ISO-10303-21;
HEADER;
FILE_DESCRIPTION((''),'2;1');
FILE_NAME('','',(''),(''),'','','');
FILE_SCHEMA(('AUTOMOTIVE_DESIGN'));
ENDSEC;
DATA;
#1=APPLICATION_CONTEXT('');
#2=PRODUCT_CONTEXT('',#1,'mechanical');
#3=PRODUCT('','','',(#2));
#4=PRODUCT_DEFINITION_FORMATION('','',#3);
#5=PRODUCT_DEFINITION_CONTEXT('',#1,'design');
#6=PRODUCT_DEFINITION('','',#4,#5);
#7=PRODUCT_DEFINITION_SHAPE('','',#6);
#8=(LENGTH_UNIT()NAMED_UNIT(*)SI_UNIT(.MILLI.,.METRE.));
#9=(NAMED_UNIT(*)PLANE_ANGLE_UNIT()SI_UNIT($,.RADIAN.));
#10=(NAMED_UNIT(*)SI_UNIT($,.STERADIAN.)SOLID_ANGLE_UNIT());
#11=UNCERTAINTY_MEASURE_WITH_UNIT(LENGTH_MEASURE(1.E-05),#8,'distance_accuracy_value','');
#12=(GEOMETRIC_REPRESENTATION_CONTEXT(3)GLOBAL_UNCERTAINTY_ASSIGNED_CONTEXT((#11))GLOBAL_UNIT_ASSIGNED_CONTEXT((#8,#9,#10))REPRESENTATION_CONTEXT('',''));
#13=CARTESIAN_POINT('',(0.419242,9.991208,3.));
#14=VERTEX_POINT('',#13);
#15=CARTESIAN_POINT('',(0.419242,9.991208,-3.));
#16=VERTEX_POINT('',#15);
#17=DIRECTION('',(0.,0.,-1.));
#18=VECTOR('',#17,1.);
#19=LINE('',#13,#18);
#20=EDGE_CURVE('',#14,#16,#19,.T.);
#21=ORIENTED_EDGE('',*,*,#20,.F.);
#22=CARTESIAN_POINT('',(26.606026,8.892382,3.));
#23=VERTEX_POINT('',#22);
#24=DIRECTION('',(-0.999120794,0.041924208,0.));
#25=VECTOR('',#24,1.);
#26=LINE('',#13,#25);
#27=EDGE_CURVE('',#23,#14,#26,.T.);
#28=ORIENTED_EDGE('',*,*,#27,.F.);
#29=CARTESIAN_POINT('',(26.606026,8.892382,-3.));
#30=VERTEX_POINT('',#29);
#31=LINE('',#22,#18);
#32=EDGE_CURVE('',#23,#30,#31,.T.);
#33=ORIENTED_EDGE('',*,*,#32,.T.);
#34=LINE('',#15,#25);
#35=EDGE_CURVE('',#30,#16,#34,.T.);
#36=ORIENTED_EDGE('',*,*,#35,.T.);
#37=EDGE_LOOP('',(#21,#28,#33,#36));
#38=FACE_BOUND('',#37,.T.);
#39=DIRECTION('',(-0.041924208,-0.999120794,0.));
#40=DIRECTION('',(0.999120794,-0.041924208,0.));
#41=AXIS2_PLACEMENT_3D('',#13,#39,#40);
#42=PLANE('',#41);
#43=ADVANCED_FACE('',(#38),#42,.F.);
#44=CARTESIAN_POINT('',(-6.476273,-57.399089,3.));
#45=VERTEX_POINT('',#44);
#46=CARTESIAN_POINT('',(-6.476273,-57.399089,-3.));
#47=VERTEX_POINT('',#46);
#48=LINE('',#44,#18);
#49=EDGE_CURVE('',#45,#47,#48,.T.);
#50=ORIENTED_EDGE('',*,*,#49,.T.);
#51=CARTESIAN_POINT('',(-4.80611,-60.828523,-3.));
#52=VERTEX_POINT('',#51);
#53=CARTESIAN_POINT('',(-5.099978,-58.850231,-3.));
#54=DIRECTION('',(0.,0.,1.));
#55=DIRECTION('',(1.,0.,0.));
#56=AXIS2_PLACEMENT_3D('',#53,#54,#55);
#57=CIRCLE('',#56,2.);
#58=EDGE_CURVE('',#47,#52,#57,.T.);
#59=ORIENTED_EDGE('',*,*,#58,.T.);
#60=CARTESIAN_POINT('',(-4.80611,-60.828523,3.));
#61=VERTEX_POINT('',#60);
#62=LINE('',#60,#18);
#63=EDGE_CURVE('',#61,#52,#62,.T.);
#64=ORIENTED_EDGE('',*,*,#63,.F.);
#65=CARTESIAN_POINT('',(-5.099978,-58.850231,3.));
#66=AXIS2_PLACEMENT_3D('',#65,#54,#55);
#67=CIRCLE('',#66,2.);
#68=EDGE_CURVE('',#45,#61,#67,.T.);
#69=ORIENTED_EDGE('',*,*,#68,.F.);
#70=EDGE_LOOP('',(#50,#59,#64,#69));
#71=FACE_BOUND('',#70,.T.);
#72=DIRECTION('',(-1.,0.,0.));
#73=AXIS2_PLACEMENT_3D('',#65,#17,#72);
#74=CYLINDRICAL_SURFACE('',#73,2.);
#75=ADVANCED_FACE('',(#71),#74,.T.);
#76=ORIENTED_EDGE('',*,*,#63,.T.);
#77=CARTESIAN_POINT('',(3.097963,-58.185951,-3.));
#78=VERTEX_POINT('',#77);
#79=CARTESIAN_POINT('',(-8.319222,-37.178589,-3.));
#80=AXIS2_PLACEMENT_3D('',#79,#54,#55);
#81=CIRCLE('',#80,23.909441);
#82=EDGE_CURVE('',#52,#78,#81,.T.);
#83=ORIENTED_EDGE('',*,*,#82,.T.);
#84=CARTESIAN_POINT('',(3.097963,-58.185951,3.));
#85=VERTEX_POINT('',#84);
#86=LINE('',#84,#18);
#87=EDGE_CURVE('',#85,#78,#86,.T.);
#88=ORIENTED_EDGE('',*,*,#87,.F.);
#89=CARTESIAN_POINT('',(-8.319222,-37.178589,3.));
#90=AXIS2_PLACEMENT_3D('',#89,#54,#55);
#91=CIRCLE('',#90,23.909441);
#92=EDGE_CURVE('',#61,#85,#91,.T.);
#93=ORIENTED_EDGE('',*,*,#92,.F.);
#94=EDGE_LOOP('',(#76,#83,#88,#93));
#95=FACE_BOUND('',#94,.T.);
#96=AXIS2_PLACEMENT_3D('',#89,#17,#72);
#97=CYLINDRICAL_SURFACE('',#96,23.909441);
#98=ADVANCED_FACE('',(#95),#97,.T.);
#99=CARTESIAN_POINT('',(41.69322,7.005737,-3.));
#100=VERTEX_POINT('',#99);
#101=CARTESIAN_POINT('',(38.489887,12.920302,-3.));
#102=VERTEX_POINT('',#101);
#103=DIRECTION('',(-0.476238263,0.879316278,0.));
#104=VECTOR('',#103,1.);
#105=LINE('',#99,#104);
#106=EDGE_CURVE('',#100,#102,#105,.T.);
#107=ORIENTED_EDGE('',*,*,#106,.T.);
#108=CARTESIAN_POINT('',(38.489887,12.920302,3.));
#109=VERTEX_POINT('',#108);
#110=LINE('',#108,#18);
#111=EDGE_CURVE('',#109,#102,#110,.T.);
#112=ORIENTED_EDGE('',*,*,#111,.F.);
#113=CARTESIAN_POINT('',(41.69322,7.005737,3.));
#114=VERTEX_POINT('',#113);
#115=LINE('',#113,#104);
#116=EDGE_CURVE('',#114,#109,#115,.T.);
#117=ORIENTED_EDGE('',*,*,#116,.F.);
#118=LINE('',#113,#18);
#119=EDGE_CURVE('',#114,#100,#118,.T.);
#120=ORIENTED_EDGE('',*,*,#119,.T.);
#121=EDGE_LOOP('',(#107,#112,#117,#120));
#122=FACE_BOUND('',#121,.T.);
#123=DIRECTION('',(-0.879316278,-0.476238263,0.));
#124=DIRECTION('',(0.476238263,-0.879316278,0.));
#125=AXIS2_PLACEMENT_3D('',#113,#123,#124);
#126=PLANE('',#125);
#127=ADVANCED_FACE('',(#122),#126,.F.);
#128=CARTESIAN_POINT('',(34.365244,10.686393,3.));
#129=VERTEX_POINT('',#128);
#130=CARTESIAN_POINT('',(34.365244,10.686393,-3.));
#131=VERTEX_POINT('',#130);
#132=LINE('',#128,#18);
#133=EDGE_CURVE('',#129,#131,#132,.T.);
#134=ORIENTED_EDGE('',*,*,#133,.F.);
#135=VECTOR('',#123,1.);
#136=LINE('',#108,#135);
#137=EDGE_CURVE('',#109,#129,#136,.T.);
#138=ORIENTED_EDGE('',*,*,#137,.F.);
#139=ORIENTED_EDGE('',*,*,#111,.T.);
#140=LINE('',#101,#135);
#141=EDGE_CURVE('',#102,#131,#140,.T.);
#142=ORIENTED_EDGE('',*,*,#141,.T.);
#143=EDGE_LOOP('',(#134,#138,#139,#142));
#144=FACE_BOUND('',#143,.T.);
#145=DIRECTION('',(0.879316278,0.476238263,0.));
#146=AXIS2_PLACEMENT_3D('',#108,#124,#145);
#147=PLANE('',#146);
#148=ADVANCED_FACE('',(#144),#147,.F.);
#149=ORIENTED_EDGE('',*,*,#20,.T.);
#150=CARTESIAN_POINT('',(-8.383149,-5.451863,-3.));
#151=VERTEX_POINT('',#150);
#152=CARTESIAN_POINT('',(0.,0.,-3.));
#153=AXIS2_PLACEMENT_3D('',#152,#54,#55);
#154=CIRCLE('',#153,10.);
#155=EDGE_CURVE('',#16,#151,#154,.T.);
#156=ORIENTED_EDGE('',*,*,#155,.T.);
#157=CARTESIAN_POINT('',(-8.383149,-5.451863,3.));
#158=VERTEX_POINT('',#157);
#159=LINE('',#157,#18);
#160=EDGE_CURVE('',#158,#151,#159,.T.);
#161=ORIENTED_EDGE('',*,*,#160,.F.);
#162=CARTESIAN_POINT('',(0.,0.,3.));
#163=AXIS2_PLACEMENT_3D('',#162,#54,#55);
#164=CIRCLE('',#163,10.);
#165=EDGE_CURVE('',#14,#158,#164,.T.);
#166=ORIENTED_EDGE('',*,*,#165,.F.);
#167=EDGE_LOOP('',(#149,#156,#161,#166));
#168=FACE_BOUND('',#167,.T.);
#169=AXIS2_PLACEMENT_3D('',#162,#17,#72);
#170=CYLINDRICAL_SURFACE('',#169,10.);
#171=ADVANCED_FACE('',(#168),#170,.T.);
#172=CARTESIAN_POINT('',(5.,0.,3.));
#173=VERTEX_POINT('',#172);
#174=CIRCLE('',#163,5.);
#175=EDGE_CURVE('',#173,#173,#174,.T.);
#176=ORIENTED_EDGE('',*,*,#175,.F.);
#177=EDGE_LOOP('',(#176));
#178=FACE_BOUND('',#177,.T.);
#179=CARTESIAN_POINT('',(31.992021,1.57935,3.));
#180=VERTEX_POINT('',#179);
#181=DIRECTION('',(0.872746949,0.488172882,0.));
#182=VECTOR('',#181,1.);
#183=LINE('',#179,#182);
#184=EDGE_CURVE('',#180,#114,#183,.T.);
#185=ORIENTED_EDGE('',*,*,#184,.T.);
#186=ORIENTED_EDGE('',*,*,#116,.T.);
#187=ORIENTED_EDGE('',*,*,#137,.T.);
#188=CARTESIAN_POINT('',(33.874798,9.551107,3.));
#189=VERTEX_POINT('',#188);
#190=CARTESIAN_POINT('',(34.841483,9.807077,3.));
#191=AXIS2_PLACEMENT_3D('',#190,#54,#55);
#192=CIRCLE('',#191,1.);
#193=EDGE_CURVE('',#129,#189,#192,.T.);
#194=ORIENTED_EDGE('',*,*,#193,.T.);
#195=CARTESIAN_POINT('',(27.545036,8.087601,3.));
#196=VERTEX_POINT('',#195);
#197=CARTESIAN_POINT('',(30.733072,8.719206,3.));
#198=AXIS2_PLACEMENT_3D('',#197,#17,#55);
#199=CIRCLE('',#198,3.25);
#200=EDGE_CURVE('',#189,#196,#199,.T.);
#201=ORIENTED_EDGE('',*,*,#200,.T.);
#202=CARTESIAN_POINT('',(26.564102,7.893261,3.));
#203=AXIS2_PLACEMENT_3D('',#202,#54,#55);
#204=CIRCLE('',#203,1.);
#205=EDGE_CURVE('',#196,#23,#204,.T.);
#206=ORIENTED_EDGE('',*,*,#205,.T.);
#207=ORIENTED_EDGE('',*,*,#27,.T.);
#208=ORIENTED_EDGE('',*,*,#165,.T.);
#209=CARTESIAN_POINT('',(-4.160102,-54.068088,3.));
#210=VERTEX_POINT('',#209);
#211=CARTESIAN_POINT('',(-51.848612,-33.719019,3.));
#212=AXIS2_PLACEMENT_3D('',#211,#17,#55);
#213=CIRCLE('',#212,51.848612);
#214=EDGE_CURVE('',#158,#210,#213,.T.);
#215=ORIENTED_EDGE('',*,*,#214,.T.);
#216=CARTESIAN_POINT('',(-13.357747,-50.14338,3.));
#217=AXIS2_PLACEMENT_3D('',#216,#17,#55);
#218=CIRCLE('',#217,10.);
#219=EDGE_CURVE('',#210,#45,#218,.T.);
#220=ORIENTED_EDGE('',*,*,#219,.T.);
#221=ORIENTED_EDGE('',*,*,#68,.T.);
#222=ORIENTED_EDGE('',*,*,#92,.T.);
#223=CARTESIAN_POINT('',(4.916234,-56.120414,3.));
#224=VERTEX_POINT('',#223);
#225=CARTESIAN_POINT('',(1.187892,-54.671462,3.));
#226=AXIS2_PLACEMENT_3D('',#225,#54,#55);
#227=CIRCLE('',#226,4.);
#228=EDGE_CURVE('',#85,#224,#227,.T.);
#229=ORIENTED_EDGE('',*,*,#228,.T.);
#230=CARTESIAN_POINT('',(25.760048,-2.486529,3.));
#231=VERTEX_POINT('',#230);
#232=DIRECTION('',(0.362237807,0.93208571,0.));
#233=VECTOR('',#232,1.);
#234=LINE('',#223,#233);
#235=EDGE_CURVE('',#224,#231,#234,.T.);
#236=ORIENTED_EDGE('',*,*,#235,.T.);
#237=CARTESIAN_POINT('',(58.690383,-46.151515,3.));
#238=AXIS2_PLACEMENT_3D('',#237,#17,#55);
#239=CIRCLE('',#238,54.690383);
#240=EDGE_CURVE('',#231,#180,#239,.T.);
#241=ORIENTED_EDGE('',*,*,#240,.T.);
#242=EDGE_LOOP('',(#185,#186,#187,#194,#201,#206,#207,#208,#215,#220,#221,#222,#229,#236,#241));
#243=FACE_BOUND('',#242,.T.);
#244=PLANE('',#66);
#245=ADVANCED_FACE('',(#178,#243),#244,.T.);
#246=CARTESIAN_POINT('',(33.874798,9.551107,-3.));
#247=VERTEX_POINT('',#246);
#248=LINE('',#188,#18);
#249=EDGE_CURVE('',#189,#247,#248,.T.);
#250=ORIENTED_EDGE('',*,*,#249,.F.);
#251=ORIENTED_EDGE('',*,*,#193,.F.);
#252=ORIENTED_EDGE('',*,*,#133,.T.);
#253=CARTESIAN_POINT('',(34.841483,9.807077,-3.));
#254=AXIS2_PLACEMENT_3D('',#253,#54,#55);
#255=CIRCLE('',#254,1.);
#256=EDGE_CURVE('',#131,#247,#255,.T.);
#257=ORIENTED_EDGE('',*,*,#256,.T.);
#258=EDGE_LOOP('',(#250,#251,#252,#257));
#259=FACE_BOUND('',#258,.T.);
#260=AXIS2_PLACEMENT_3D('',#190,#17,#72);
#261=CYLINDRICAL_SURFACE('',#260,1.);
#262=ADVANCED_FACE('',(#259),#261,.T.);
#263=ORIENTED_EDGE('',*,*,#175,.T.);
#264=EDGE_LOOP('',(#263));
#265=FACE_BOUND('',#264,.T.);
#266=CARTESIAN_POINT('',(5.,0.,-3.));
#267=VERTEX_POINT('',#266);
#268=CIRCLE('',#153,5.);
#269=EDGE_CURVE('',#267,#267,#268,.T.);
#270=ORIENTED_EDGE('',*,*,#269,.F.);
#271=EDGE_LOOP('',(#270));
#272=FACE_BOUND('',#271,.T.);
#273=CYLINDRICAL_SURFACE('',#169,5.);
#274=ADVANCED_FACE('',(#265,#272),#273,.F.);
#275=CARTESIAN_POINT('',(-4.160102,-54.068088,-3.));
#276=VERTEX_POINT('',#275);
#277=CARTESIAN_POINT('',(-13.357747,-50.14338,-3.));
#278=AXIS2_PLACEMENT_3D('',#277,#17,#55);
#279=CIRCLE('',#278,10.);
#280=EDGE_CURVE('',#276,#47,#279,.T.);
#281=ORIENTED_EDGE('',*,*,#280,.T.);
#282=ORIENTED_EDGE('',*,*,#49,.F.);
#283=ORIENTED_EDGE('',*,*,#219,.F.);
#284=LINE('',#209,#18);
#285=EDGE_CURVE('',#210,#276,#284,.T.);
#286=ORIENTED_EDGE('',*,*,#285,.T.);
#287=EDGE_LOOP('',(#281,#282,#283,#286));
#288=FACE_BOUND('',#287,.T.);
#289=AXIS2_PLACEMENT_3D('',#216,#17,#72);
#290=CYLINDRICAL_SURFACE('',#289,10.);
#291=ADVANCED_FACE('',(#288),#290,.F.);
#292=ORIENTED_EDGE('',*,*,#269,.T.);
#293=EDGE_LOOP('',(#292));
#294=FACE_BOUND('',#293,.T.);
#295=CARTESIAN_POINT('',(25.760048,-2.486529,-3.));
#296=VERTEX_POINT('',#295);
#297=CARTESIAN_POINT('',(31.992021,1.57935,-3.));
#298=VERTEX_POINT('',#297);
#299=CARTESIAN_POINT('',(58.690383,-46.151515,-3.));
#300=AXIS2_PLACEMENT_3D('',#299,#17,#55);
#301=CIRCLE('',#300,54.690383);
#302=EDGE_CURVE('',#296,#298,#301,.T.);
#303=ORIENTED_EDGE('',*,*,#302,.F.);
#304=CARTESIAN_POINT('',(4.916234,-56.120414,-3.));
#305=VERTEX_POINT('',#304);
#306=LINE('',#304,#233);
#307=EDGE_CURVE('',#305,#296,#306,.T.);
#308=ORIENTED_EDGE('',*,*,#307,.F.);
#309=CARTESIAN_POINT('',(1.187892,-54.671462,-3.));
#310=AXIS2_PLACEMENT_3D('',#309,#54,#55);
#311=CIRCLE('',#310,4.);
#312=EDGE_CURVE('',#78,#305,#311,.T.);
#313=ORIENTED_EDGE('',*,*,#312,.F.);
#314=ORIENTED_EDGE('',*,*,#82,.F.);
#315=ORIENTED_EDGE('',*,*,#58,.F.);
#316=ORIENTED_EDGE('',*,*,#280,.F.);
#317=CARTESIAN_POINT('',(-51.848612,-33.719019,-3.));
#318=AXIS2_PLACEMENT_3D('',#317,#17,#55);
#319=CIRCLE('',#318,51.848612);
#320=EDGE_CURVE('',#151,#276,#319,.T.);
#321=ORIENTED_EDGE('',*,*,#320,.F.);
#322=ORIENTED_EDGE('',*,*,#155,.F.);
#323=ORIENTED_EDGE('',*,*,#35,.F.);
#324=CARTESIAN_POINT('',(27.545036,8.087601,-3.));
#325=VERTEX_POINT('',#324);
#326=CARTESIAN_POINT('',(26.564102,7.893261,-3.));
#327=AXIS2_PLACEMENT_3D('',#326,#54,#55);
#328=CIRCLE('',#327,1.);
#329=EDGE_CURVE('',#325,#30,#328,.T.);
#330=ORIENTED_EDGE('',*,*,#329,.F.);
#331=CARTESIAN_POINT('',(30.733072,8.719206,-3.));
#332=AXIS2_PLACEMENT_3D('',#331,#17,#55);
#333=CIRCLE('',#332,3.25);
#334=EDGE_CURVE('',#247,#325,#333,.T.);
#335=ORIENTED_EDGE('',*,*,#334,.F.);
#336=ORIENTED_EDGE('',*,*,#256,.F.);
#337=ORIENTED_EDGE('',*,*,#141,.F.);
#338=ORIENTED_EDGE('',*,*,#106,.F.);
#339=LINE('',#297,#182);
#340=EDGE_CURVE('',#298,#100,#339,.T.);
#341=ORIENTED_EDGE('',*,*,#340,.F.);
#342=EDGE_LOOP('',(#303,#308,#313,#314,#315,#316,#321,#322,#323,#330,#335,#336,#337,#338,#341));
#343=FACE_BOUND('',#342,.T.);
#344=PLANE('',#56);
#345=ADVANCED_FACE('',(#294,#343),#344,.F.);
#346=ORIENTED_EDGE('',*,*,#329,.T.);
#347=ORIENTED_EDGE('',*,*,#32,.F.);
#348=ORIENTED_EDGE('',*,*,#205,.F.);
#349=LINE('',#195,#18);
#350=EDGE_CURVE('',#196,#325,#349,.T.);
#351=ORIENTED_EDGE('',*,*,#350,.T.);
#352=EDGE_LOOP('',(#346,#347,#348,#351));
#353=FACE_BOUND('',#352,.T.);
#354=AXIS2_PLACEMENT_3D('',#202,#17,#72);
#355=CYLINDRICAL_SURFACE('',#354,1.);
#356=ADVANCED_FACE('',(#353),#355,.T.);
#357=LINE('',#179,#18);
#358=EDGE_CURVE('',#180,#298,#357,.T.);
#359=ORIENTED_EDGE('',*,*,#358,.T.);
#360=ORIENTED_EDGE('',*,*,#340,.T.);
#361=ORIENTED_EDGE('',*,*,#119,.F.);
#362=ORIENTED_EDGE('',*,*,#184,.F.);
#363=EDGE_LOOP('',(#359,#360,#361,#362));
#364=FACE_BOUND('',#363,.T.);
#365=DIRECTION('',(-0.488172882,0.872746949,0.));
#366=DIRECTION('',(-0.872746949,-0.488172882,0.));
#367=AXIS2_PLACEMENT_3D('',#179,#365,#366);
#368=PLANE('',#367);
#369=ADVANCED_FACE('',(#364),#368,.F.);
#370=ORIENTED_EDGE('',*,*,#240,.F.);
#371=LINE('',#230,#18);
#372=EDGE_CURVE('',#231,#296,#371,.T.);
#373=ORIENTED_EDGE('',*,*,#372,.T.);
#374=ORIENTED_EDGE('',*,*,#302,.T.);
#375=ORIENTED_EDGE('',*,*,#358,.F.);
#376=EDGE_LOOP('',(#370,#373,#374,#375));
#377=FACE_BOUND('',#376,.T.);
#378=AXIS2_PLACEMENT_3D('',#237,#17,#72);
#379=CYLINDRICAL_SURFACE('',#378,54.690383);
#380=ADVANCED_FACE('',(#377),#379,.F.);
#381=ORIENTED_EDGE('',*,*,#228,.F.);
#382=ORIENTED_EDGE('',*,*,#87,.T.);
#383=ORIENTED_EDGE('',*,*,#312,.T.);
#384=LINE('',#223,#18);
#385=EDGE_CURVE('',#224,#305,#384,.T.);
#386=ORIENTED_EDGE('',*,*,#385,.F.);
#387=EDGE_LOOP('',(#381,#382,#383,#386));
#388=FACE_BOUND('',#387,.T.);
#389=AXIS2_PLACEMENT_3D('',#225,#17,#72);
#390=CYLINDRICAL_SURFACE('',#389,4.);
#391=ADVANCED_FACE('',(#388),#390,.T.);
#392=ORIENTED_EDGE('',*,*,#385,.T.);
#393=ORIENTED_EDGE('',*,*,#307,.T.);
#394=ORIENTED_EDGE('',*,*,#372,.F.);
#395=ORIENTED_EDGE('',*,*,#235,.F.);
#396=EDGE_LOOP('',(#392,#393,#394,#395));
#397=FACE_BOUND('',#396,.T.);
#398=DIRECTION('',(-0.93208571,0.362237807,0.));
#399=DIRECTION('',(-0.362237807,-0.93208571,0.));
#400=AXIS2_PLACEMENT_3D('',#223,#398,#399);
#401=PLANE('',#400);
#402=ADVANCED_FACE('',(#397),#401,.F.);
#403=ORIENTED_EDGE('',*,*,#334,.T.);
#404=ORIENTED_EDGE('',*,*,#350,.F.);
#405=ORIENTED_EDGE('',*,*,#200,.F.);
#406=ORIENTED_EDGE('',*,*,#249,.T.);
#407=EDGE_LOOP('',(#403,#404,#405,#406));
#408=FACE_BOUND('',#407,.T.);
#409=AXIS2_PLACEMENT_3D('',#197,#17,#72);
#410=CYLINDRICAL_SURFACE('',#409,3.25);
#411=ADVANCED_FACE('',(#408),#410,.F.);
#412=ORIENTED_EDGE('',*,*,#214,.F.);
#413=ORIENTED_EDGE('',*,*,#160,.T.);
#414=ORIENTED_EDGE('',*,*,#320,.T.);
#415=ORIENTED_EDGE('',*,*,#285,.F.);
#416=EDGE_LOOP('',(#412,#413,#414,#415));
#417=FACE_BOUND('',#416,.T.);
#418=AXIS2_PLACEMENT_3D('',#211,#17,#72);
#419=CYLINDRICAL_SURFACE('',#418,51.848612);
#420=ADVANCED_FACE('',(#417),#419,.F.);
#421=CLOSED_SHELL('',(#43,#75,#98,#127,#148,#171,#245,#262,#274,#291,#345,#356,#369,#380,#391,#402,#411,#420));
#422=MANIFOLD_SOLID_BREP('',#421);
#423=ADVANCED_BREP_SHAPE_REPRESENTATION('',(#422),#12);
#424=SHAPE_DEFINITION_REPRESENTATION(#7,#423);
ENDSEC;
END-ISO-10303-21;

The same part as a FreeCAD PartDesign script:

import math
import FreeCAD as App
import Part
import Sketcher
Q = App.Units.Quantity

doc = App.newDocument("Part")
body = doc.addObject("PartDesign::Body", "Body")

# Sketch on XY plane
sketch1 = doc.addObject("Sketcher::SketchObject", "Sketch")
body.addObject(sketch1)
sketch1.AttachmentSupport = (doc.XY_Plane, [""])
sketch1.MapMode = "FlatFace"
sketch1.addGeometry(Part.LineSegment(App.Vector(4.9, -56.1, 0), App.Vector(25.8, -2.5, 0)), False)
sketch1.addGeometry(Part.ArcOfCircle(Part.Circle(App.Vector(58.7, -46.2, 0), App.Vector(0, 0, 1), 54.7), math.radians(119.22), math.radians(127.02)), False)
sketch1.addGeometry(Part.LineSegment(App.Vector(32, 1.6, 0), App.Vector(41.7, 7, 0)), False)
sketch1.addGeometry(Part.LineSegment(App.Vector(41.7, 7, 0), App.Vector(38.5, 12.9, 0)), False)
sketch1.addGeometry(Part.LineSegment(App.Vector(38.5, 12.9, 0), App.Vector(34.4, 10.7, 0)), False)
sketch1.addGeometry(Part.ArcOfCircle(Part.Circle(App.Vector(34.8, 9.8, 0), App.Vector(0, 0, 1), 1), math.radians(118), math.radians(195)), False)
sketch1.addGeometry(Part.ArcOfCircle(Part.Circle(App.Vector(30.7, 8.7, 0), App.Vector(0, 0, 1), 3.2), math.radians(-169), math.radians(15)), False)
sketch1.addGeometry(Part.ArcOfCircle(Part.Circle(App.Vector(26.6, 7.9, 0), App.Vector(0, 0, 1), 1), math.radians(11), math.radians(88)), False)
sketch1.addGeometry(Part.LineSegment(App.Vector(26.6, 8.9, 0), App.Vector(0.4, 10, 0)), False)
sketch1.addGeometry(Part.ArcOfCircle(Part.Circle(App.Vector(0, 0, 0), App.Vector(0, 0, 1), 10), math.radians(88), math.radians(213)), False)
sketch1.addGeometry(Part.ArcOfCircle(Part.Circle(App.Vector(-51.8, -33.7, 0), App.Vector(0, 0, 1), 51.8), math.radians(-23), math.radians(33)), False)
sketch1.addGeometry(Part.ArcOfCircle(Part.Circle(App.Vector(-13.4, -50.1, 0), App.Vector(0, 0, 1), 10), math.radians(-47), math.radians(-23)), False)
sketch1.addGeometry(Part.ArcOfCircle(Part.Circle(App.Vector(-5.1, -58.9, 0), App.Vector(0, 0, 1), 2), math.radians(133), math.radians(278)), False)
sketch1.addGeometry(Part.ArcOfCircle(Part.Circle(App.Vector(-8.3, -37.2, 0), App.Vector(0, 0, 1), 23.9), math.radians(-82), math.radians(-61)), False)
sketch1.addGeometry(Part.ArcOfCircle(Part.Circle(App.Vector(1.2, -54.7, 0), App.Vector(0, 0, 1), 4), math.radians(-61), math.radians(-21)), False)
sketch1.addGeometry(Part.Circle(App.Vector(0, 0, 0), App.Vector(0, 0, 1), 5), False)
sketch1.addConstraint(Sketcher.Constraint("Coincident", 0, 2, 1, 2))
sketch1.addConstraint(Sketcher.Constraint("Tangent", 1, 1, 2, 1))
sketch1.addConstraint(Sketcher.Constraint("Coincident", 2, 2, 3, 1))
sketch1.addConstraint(Sketcher.Constraint("Coincident", 3, 2, 4, 1))
sketch1.addConstraint(Sketcher.Constraint("Tangent", 4, 2, 5, 1))
sketch1.addConstraint(Sketcher.Constraint("Tangent", 5, 2, 6, 2))
sketch1.addConstraint(Sketcher.Constraint("Tangent", 6, 1, 7, 1))
sketch1.addConstraint(Sketcher.Constraint("Tangent", 7, 2, 8, 1))
sketch1.addConstraint(Sketcher.Constraint("Tangent", 8, 2, 9, 1))
sketch1.addConstraint(Sketcher.Constraint("Tangent", 9, 2, 10, 2))
sketch1.addConstraint(Sketcher.Constraint("Tangent", 10, 1, 11, 2))
sketch1.addConstraint(Sketcher.Constraint("Tangent", 11, 1, 12, 1))
sketch1.addConstraint(Sketcher.Constraint("Tangent", 12, 2, 13, 1))
sketch1.addConstraint(Sketcher.Constraint("Tangent", 13, 2, 14, 1))
sketch1.addConstraint(Sketcher.Constraint("Tangent", 14, 2, 0, 1))
sketch1.addConstraint(Sketcher.Constraint("Coincident", 9, 3, -1, 1))
sketch1.addConstraint(Sketcher.Constraint("Coincident", 15, 3, -1, 1))
sketch1.addConstraint(Sketcher.Constraint("Equal", 5, 7))
sketch1.addConstraint(Sketcher.Constraint("Equal", 9, 11))
sketch1.addConstraint(Sketcher.Constraint("Perpendicular", 3, 4))
sketch1.addConstraint(Sketcher.Constraint("Diameter", 15, 10.0))
sketch1.addConstraint(Sketcher.Constraint("Radius", 5, 1.0))
sketch1.addConstraint(Sketcher.Constraint("Radius", 9, 10.0))
sketch1.addConstraint(Sketcher.Constraint("Radius", 12, 2.0))
sketch1.addConstraint(Sketcher.Constraint("Radius", 14, 4.0))
sketch1.addConstraint(Sketcher.Constraint("Radius", 6, 3.25))
sketch1.addConstraint(Sketcher.Constraint("Angle", 3, Q("118.440004 deg")))
sketch1.addConstraint(Sketcher.Constraint("Radius", 10, 51.848612))
sketch1.addConstraint(Sketcher.Constraint("Radius", 13, 23.909441))
sketch1.addConstraint(Sketcher.Constraint("Radius", 1, 54.690383))
sketch1.addConstraint(Sketcher.Constraint("DistanceY", 11, 1, 10, 1, 3.331001))
sketch1.addConstraint(Sketcher.Constraint("DistanceX", 12, 2, 14, 3, 5.994001))
sketch1.addConstraint(Sketcher.Constraint("DistanceX", -1, 1, 7, 3, 26.564102))
sketch1.addConstraint(Sketcher.Constraint("DistanceY", -1, 1, 6, 1, 8.087601))
sketch1.addConstraint(Sketcher.Constraint("DistanceX", 5, 3, 1, 3, 23.848901))
sketch1.addConstraint(Sketcher.Constraint("DistanceX", 1, 1, 2, 2, 9.701199))
sketch1.addConstraint(Sketcher.Constraint("DistanceY", 6, 3, 5, 2, 0.831901))
sketch1.addConstraint(Sketcher.Constraint("DistanceY", 10, 1, 13, 3, 16.889499))
sketch1.addConstraint(Sketcher.Constraint("Distance", 4, 4.690739))
sketch1.addConstraint(Sketcher.Constraint("DistanceX", -1, 1, 6, 3, 30.733072))
sketch1.addConstraint(Sketcher.Constraint("DistanceX", 10, 3, -1, 1, 51.848612))
sketch1.addConstraint(Sketcher.Constraint("DistanceY", 11, 3, -1, 1, 50.14338))
sketch1.addConstraint(Sketcher.Constraint("DistanceX", -1, 1, 0, 2, 25.760048))
sketch1.addConstraint(Sketcher.Constraint("DistanceY", 0, 2, -1, 1, 2.486529))
pad1 = doc.addObject("PartDesign::Pad", "Pad")
body.addObject(pad1)
pad1.Profile = sketch1
pad1.Length = 6
pad1.Midplane = True

doc.recompute()
